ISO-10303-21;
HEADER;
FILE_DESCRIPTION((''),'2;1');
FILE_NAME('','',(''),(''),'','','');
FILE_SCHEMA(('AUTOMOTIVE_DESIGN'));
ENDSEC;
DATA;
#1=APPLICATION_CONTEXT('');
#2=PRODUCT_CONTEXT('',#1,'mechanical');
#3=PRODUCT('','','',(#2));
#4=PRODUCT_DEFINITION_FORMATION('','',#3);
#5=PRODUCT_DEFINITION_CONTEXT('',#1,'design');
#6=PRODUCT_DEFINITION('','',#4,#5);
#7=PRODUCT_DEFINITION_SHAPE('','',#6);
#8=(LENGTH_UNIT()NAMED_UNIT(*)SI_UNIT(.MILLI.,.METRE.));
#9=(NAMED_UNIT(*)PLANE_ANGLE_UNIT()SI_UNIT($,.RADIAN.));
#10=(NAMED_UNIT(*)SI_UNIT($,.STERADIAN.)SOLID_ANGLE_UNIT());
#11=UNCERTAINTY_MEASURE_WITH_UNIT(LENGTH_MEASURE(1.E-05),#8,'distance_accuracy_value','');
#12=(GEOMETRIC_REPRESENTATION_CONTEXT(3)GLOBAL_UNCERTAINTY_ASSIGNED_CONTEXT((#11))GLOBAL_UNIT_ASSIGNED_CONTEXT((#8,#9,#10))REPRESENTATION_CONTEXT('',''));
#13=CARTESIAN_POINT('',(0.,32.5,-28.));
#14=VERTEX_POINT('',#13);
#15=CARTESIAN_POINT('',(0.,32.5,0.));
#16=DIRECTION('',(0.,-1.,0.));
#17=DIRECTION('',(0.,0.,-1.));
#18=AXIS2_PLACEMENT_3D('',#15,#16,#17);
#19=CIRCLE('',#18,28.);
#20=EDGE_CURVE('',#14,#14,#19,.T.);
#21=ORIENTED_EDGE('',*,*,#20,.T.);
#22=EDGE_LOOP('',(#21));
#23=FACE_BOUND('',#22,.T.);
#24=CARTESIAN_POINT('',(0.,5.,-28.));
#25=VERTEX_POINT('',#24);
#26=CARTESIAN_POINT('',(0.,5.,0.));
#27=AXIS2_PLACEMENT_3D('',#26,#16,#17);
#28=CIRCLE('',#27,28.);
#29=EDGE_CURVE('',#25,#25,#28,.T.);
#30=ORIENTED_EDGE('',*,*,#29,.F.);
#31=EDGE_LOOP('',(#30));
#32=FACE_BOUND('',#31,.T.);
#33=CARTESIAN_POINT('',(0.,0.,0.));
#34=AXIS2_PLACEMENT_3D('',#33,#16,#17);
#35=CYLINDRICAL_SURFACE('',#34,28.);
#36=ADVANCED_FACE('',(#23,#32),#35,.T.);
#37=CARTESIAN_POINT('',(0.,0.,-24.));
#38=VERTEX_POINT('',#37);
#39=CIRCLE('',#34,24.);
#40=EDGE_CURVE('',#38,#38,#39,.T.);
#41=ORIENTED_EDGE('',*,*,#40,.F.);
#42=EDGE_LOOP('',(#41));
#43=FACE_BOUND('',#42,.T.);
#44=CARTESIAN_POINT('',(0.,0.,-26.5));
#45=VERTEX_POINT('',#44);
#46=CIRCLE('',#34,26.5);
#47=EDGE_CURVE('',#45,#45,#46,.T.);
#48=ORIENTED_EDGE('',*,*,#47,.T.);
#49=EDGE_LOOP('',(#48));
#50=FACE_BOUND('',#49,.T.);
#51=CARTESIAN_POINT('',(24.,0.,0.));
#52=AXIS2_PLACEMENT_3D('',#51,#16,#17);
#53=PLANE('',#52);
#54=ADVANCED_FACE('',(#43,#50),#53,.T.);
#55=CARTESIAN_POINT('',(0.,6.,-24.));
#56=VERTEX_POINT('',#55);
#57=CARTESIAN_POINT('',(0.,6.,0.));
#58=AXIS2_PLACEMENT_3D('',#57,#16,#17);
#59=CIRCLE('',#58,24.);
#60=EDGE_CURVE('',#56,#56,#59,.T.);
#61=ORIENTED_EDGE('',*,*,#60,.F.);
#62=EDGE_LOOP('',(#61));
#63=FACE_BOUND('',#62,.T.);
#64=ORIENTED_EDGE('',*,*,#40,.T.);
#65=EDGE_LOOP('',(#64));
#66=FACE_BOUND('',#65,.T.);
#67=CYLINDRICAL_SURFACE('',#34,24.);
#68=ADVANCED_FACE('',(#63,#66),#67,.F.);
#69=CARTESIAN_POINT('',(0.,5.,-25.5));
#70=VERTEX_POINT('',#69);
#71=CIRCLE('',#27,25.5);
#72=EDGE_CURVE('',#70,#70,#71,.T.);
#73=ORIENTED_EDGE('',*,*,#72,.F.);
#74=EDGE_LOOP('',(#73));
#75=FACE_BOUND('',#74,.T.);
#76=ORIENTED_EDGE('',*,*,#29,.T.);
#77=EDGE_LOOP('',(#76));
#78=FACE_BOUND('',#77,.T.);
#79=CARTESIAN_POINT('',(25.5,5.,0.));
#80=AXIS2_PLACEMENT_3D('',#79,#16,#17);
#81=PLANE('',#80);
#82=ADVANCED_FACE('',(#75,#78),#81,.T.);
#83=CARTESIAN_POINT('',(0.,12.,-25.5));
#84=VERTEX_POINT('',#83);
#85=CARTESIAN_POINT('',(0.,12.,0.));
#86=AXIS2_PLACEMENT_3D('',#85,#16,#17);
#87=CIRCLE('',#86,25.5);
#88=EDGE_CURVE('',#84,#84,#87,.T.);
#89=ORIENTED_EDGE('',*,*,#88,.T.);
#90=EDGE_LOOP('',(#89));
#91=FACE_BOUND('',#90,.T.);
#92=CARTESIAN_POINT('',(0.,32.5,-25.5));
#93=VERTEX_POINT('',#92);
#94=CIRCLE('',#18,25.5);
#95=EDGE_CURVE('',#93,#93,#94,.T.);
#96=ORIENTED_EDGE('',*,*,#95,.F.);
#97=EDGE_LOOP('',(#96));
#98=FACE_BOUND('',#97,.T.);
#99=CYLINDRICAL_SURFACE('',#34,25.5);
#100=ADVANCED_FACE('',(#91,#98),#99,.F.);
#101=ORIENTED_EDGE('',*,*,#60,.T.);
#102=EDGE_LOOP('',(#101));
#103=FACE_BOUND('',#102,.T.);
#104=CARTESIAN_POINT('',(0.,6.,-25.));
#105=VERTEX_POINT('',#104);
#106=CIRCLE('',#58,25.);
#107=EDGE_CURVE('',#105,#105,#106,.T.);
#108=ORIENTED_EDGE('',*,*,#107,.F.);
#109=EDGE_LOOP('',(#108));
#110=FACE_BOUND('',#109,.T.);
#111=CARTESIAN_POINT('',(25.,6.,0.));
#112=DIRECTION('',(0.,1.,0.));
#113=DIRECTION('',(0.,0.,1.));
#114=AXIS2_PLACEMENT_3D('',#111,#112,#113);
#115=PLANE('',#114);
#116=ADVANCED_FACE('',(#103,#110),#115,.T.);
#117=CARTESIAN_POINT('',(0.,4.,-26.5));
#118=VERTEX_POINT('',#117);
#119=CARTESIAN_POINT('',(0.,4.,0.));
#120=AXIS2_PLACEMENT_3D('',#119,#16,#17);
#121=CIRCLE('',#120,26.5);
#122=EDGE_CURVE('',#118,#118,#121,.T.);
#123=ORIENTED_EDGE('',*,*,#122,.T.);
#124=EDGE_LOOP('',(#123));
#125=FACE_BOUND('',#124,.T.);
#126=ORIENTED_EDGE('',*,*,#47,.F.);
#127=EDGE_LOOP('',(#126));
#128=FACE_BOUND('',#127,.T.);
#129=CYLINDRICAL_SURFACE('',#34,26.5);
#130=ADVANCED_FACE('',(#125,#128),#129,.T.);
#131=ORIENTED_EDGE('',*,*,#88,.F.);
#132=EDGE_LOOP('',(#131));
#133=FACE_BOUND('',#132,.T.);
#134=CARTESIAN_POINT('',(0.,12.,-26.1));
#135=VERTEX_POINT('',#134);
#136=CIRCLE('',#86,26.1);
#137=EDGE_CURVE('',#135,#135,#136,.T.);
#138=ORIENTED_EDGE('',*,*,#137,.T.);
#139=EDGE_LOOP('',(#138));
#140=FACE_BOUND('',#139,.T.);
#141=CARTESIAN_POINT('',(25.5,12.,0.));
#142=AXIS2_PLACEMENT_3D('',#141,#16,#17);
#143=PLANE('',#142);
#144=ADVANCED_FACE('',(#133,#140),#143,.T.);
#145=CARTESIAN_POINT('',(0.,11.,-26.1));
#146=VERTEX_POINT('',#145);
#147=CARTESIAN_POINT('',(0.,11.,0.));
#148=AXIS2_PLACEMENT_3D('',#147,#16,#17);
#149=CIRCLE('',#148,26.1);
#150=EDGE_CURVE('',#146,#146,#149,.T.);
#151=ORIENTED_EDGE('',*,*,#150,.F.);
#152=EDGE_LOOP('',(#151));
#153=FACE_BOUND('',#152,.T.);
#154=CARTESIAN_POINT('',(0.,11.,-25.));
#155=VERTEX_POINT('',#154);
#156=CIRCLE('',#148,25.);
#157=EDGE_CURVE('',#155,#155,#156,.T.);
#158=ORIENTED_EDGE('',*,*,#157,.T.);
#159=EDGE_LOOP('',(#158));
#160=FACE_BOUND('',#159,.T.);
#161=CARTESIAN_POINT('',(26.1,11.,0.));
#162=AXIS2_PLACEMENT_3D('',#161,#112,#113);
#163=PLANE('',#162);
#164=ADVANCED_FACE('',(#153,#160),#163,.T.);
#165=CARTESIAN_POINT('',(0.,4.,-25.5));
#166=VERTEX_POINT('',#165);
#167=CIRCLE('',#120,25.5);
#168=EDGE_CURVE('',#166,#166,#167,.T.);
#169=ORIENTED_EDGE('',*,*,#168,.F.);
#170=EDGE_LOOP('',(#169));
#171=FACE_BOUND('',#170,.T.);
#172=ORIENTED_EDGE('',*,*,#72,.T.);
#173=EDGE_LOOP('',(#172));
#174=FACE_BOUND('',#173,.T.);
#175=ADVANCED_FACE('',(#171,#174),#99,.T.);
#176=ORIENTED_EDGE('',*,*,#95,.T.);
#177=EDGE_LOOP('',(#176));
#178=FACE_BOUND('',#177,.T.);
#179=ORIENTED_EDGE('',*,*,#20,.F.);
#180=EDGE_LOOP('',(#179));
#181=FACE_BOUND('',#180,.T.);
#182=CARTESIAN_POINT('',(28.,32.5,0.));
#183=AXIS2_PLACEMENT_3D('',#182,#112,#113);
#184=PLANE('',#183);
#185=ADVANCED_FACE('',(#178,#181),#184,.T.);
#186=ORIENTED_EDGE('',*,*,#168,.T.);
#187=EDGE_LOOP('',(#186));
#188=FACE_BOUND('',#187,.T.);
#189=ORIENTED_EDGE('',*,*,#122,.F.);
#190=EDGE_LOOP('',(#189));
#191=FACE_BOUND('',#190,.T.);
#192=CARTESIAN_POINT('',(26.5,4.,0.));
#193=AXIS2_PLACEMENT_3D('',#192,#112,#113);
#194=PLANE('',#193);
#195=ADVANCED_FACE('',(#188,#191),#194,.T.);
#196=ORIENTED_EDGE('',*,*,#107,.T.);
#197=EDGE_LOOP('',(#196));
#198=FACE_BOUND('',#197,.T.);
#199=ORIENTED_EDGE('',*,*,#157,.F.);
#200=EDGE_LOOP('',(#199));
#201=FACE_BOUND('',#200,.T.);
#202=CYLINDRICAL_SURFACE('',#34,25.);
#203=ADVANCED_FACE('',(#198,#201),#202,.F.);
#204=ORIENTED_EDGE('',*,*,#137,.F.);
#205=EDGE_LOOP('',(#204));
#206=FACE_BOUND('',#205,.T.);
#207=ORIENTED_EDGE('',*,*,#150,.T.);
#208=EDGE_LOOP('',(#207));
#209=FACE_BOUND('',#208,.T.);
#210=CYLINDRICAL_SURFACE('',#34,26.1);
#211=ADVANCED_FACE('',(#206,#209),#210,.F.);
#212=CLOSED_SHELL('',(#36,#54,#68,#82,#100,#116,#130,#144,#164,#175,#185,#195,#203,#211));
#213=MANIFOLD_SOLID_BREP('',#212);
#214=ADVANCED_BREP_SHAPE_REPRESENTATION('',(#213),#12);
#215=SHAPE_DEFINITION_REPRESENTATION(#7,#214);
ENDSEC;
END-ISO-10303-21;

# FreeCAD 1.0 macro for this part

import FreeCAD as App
import Part
import Sketcher


def add_polygon(sketch, points):
    """Adds a closed chain of lines whose ends are joined by coincident constraints."""
    first, n = sketch.GeometryCount, len(points)
    for a, b in zip(points, points[1:] + points[:1]):
        sketch.addGeometry(Part.LineSegment(App.Vector(*a, 0), App.Vector(*b, 0)), False)
    for i in range(n):
        sketch.addConstraint(Sketcher.Constraint("Coincident", first + i, 2, first + (i + 1) % n, 1))

doc = App.newDocument("Part")
params = doc.addObject("Spreadsheet::Sheet", "Params")
for row, (alias, value) in enumerate([
    ("sketch1_width", "1 mm"),
    ("sketch1_height", "4 mm"),
    ("sketch1_height2", "5 mm"),
    ("sketch1_height3", "6 mm"),
    ("sketch1_width2", "2.5 mm"),
    ("revolution_angle", "360 deg"),
], start=1):
    params.set(f"A{row}", alias)
    params.set(f"B{row}", "=" + value)
    params.setAlias(f"B{row}", alias)

body = doc.addObject("PartDesign::Body", "Body")

# Sketch on XY plane
sketch1 = body.newObject("Sketcher::SketchObject", "Sketch")
sketch1.AttachmentSupport = (doc.getObject("XY_Plane"), [""])
sketch1.MapMode = "FlatFace"
add_polygon(sketch1, [(24, 0), (26.5, 0), (26.5, 4), (25.5, 4), (25.5, 5), (28, 5), (28, 32.5), (25.5, 32.5), (25.5, 12), (26.1, 12), (26.1, 11), (25, 11), (25, 6), (24, 6)])  # lines 0-13
sketch1.addConstraint([
    Sketcher.Constraint("Horizontal", 0),
    Sketcher.Constraint("Vertical", 1),
    Sketcher.Constraint("Horizontal", 2),
    Sketcher.Constraint("Vertical", 3),
    Sketcher.Constraint("Horizontal", 4),
    Sketcher.Constraint("Vertical", 5),
    Sketcher.Constraint("Horizontal", 6),
    Sketcher.Constraint("Vertical", 7),
    Sketcher.Constraint("Horizontal", 8),
    Sketcher.Constraint("Vertical", 9),
    Sketcher.Constraint("Horizontal", 10),
    Sketcher.Constraint("Vertical", 11),
    Sketcher.Constraint("Horizontal", 12),
    Sketcher.Constraint("Vertical", 13),
    Sketcher.Constraint("PointOnObject", 0, 2, -1),
    Sketcher.Constraint("Vertical", 3, 2, 6, 2),
    Sketcher.Constraint("Equal", 0, 4),
    Sketcher.Constraint("Equal", 2, 12),
    Sketcher.Constraint("Equal", 12, 3),
    Sketcher.Constraint("Equal", 3, 9),
    Sketcher.Constraint("DistanceX", 2, 2, 2, 1, 1.0),
    Sketcher.Constraint("DistanceY", 1, 1, 1, 2, 4.0),
    Sketcher.Constraint("DistanceY", 11, 2, 11, 1, 5.0),
    Sketcher.Constraint("DistanceY", 13, 2, 13, 1, 6.0),
    Sketcher.Constraint("DistanceX", 0, 1, 0, 2, 2.5),
    Sketcher.Constraint("DistanceX", 8, 1, 8, 2, 0.6),
    Sketcher.Constraint("DistanceY", 5, 1, 5, 2, 27.5),
    Sketcher.Constraint("DistanceX", -1, 1, 4, 2, 28.0),
])
sketch1.setExpression("Constraints[34]", "Params.sketch1_width")
sketch1.setExpression("Constraints[35]", "Params.sketch1_height")
sketch1.setExpression("Constraints[36]", "Params.sketch1_height2")
sketch1.setExpression("Constraints[37]", "Params.sketch1_height3")
sketch1.setExpression("Constraints[38]", "Params.sketch1_width2")
revolution = body.newObject("PartDesign::Revolution", "Revolution")
revolution.Profile = sketch1
revolution.ReferenceAxis = (sketch1, ["V_Axis"])
revolution.setExpression("Angle", "Params.revolution_angle")

doc.recompute()
